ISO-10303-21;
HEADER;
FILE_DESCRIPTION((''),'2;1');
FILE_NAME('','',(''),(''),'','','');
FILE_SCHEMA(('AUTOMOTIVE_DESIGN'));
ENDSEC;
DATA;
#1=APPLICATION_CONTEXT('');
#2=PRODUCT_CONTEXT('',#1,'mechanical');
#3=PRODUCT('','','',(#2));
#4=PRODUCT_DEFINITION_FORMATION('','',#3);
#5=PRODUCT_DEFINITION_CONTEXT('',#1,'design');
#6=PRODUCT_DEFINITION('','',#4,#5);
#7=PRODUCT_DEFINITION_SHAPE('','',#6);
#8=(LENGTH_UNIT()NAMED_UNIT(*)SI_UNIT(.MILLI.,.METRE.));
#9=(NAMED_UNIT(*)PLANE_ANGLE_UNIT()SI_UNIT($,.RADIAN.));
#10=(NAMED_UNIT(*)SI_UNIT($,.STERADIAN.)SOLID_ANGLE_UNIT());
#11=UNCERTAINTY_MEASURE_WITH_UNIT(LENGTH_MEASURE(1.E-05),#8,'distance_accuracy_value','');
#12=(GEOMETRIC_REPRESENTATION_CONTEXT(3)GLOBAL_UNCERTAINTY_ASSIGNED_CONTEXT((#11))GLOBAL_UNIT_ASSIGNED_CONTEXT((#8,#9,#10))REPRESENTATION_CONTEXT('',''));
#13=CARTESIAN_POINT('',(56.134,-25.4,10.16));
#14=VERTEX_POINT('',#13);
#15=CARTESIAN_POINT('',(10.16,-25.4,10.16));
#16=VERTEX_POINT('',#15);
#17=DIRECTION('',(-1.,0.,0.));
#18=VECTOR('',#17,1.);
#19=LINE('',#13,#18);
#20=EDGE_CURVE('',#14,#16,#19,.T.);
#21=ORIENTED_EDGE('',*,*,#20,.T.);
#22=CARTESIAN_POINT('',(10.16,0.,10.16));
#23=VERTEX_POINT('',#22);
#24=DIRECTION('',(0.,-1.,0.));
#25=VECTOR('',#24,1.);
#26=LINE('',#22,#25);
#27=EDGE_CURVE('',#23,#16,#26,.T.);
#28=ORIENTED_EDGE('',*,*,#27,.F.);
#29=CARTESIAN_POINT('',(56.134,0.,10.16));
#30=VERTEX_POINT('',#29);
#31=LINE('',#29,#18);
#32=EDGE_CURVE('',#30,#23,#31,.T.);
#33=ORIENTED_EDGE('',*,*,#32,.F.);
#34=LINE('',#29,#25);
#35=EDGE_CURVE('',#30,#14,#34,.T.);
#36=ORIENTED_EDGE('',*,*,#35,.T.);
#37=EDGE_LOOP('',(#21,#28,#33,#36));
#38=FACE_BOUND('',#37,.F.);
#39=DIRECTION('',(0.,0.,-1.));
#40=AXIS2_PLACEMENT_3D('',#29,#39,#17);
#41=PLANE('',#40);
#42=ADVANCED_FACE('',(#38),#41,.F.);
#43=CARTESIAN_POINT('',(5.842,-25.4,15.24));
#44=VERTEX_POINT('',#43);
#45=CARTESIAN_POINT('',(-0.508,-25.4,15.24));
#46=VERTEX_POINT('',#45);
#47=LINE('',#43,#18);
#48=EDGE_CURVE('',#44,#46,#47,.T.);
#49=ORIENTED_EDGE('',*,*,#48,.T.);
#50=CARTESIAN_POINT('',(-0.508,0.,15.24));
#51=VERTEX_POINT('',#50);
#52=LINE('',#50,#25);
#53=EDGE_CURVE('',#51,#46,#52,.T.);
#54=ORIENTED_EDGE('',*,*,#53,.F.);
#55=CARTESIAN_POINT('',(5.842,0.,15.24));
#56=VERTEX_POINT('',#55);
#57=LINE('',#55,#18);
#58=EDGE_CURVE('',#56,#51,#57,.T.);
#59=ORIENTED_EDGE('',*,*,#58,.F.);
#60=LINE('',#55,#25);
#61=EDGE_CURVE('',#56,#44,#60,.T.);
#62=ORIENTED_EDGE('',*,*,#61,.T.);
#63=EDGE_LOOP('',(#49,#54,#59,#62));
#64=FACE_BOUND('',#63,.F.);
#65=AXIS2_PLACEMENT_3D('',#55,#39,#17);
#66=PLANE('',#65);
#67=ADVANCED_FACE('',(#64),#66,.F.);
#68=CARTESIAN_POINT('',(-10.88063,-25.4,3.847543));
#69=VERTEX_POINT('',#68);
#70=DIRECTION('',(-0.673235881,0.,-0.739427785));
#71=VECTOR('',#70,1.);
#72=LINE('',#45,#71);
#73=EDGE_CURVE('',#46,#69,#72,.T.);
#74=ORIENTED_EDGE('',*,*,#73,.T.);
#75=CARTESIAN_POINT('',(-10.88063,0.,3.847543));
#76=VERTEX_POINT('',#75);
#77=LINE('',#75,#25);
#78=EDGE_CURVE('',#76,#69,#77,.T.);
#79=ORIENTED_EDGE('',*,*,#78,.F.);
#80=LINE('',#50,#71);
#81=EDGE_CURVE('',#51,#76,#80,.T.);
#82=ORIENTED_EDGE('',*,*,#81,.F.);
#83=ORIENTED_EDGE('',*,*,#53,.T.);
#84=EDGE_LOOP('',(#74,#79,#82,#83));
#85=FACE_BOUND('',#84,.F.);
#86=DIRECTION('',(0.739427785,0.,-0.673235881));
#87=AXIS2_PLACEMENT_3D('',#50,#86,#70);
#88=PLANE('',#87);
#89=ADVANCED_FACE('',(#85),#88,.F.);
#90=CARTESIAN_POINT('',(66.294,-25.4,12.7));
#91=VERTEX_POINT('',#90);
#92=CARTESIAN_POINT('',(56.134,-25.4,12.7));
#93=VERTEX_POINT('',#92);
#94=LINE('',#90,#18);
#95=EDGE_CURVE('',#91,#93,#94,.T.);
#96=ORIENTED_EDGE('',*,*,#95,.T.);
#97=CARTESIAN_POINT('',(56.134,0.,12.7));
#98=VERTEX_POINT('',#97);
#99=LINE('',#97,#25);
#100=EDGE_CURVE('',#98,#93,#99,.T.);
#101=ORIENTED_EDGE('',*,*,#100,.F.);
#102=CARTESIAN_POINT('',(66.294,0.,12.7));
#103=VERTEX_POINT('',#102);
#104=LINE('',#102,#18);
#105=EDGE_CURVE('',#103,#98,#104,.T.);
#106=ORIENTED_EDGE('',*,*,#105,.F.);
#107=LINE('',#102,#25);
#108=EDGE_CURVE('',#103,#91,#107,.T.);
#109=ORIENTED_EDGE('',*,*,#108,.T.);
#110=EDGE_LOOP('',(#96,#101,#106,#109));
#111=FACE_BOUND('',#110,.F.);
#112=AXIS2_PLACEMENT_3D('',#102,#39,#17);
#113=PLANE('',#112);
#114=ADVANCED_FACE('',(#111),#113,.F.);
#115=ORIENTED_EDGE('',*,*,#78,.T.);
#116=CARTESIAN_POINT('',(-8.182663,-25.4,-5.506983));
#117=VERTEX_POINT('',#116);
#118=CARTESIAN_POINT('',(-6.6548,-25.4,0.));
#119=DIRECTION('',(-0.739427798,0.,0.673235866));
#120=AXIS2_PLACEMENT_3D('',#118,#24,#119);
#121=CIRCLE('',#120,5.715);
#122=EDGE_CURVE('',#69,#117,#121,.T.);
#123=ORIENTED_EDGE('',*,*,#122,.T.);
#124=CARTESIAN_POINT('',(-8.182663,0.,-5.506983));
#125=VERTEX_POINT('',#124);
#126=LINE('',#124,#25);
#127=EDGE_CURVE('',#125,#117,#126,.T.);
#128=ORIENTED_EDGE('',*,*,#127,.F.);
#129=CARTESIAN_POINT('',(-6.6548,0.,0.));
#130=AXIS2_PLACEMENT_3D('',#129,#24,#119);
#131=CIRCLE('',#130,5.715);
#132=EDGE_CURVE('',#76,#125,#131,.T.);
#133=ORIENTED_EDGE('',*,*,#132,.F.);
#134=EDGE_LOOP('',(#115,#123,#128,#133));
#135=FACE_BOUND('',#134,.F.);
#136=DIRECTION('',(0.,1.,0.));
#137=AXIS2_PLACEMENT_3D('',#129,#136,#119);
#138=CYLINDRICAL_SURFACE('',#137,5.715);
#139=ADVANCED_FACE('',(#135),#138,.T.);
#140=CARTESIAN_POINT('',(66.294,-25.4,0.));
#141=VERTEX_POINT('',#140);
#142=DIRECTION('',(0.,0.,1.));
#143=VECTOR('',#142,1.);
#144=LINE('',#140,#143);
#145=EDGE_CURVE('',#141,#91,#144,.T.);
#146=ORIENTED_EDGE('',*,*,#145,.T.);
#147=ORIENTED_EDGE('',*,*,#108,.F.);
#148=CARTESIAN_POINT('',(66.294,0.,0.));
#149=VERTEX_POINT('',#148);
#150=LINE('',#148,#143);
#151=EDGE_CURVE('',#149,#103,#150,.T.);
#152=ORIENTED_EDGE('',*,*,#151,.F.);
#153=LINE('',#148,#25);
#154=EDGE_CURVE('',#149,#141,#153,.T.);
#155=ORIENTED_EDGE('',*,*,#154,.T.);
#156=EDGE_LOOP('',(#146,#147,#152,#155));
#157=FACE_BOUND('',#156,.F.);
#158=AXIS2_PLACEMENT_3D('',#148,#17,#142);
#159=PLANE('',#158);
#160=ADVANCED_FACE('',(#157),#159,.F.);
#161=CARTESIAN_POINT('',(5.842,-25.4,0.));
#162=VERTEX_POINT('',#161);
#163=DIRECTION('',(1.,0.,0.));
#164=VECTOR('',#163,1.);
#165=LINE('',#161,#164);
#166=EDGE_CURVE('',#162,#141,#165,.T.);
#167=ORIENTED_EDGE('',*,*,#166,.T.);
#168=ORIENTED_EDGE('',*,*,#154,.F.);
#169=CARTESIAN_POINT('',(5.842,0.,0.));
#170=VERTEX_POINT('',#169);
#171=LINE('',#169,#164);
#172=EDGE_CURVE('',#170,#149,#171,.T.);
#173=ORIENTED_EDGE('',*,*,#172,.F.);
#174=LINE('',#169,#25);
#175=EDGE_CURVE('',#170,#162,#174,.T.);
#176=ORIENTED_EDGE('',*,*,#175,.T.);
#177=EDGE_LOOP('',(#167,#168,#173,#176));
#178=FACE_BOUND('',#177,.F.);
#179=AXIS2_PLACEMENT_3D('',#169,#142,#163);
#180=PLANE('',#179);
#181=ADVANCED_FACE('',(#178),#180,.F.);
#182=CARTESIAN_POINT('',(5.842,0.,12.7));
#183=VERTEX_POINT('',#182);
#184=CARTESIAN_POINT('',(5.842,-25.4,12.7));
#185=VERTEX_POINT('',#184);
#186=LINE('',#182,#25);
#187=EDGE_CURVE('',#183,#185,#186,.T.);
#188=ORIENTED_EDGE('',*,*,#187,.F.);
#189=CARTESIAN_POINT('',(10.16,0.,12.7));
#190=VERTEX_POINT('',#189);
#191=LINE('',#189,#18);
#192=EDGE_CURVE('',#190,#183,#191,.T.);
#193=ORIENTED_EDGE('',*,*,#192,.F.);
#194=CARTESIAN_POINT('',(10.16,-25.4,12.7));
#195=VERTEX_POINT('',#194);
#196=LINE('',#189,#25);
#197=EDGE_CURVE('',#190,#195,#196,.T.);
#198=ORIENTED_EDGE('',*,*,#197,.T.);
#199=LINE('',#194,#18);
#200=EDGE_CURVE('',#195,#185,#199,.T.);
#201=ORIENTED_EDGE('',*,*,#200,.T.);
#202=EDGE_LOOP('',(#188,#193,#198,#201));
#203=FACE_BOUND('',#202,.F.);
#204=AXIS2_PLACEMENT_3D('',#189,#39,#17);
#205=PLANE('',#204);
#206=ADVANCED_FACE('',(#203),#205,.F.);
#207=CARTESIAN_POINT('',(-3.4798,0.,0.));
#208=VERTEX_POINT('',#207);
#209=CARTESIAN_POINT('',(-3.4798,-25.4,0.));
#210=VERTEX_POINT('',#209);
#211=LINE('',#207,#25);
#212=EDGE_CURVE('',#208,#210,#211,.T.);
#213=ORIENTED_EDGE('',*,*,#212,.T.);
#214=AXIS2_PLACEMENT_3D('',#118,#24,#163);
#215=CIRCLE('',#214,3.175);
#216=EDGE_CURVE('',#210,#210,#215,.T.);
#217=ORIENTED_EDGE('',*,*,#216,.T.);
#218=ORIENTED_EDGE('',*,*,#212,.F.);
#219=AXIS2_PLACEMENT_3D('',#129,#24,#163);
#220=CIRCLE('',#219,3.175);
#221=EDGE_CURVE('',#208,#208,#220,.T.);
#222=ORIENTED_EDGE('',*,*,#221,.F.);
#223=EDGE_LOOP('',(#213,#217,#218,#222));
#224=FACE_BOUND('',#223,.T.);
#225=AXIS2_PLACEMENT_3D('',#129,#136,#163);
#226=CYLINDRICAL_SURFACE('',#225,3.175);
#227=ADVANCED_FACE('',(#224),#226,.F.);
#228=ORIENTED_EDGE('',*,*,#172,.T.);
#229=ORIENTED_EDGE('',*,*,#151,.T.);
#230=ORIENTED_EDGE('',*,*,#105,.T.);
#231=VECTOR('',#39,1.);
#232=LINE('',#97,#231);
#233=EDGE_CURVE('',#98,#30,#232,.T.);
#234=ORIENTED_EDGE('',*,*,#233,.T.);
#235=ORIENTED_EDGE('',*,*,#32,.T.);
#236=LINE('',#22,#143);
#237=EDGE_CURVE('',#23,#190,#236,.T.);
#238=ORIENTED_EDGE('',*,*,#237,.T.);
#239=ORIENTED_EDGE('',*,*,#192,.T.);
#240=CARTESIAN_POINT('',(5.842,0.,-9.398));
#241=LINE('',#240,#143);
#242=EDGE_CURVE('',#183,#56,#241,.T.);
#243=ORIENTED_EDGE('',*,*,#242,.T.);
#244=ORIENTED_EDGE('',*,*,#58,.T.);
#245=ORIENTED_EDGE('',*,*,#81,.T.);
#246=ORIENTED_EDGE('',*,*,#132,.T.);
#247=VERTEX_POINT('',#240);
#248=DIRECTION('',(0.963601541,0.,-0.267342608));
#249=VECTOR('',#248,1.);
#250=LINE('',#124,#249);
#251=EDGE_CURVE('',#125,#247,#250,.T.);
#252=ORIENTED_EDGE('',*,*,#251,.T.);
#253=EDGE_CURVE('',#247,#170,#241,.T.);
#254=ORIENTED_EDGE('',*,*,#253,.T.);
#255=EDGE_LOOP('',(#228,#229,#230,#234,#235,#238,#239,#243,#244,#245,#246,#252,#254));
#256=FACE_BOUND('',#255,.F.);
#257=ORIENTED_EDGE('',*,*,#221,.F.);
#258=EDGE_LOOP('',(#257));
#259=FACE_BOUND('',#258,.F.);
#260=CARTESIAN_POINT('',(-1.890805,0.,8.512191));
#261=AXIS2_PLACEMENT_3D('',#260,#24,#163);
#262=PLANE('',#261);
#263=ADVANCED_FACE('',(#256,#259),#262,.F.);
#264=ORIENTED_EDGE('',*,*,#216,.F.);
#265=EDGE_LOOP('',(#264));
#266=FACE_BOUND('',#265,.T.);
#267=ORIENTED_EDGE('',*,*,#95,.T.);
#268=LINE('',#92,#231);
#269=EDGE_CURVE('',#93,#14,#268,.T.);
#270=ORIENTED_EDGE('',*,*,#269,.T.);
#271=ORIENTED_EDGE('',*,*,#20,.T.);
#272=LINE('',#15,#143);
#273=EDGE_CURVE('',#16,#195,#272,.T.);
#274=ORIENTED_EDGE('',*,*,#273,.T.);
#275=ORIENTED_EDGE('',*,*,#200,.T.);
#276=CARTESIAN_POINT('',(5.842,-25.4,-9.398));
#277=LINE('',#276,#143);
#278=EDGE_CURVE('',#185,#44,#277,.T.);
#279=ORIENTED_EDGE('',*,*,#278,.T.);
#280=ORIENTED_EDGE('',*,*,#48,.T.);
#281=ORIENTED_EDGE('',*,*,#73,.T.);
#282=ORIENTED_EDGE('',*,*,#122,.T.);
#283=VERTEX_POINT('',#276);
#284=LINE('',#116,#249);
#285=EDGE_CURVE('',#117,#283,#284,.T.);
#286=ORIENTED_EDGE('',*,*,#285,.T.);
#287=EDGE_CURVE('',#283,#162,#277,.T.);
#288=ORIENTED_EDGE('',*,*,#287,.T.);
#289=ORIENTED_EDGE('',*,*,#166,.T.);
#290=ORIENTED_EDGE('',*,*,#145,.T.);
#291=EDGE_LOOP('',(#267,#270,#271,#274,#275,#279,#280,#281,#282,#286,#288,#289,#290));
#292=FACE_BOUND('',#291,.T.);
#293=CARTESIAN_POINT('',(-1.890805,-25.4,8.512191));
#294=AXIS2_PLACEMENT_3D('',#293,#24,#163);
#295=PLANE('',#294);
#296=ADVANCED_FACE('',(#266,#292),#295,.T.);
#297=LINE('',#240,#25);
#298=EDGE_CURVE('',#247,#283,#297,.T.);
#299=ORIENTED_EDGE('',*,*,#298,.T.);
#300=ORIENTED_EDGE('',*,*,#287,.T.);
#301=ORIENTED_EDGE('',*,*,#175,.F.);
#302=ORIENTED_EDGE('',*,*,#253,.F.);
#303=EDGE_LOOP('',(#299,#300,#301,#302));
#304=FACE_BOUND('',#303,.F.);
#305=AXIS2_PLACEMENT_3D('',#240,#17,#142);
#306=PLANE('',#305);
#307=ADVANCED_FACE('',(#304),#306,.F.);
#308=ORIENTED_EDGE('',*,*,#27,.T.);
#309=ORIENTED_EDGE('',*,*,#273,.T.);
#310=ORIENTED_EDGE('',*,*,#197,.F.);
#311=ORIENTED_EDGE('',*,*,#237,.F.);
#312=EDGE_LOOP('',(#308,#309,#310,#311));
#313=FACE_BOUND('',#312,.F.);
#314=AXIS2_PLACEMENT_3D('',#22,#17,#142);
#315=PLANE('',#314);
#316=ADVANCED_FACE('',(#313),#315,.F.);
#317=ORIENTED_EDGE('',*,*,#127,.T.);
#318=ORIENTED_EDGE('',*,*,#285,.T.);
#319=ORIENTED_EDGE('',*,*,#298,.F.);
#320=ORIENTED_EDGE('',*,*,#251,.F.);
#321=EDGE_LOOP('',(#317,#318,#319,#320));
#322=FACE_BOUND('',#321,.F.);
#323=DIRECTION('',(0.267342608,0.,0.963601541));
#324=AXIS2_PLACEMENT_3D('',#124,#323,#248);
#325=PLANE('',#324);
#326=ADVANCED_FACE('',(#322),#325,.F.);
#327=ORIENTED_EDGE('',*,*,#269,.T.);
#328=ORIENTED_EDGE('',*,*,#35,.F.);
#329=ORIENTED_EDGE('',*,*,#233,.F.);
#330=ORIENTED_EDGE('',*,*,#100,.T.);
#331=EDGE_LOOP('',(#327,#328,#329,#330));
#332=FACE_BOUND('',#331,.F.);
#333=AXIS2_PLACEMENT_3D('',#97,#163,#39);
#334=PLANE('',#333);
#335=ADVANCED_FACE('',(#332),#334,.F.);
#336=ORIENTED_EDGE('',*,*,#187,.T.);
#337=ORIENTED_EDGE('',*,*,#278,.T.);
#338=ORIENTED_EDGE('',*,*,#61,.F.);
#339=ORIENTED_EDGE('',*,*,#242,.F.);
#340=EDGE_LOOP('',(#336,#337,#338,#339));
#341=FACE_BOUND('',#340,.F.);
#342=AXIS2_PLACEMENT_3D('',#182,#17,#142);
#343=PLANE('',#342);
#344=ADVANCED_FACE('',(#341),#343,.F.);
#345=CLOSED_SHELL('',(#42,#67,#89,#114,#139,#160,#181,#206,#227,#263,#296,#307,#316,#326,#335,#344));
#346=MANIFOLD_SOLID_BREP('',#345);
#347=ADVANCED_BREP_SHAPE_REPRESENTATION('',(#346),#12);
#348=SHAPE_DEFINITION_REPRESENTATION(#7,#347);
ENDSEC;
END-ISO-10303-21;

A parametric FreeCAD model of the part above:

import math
import FreeCAD as App
import Part
import Sketcher
from FreeCAD import Vector
Q = App.Units.Quantity

doc = App.newDocument("Part")
params = doc.addObject("Spreadsheet::Sheet", "Params")
for row, (alias, value) in enumerate([
    ("sketch1_diameter", "0.25 in"),
    ("sketch1_width", "0.4 in"),
    ("sketch1_height", "0.5 in"),
    ("sketch1_height2", "0.1 in"),
    ("sketch1_radius", "0.225 in"),
    ("pad1_length", "1 in"),
], start=1):
    params.set(f"A{row}", alias)
    params.set(f"B{row}", "=" + value)
    params.setAlias(f"B{row}", alias)

body = doc.addObject("PartDesign::Body", "Body")

sketch1 = doc.addObject("Sketcher::SketchObject", "Sketch")
body.addObject(sketch1)
sketch1.AttachmentSupport = (doc.XZ_Plane, [""])
sketch1.MapMode = "FlatFace"
sketch1.addGeometry([
    Part.LineSegment(Vector(5.8, 15.2, 0), Vector(-0.5, 15.2, 0)),
    Part.LineSegment(Vector(-0.5, 15.2, 0), Vector(-10.9, 3.8, 0)),
    Part.ArcOfCircle(Part.Circle(Vector(-6.7, 0, 0), Vector(0, 0, 1), 5.7), math.radians(138), math.radians(254)),
    Part.LineSegment(Vector(-8.2, -5.5, 0), Vector(5.8, -9.4, 0)),
    Part.LineSegment(Vector(5.8, -9.4, 0), Vector(5.8, 0, 0)),
    Part.LineSegment(Vector(5.8, 0, 0), Vector(66.3, 0, 0)),
    Part.LineSegment(Vector(66.3, 0, 0), Vector(66.3, 12.7, 0)),
    Part.LineSegment(Vector(66.3, 12.7, 0), Vector(56.1, 12.7, 0)),
    Part.LineSegment(Vector(56.1, 12.7, 0), Vector(56.1, 10.2, 0)),
    Part.LineSegment(Vector(56.1, 10.2, 0), Vector(10.2, 10.2, 0)),
    Part.LineSegment(Vector(10.2, 10.2, 0), Vector(10.2, 12.7, 0)),
    Part.LineSegment(Vector(10.2, 12.7, 0), Vector(5.8, 12.7, 0)),
    Part.LineSegment(Vector(5.8, 12.7, 0), Vector(5.8, 15.2, 0)),
    Part.Circle(Vector(-6.7, 0, 0), Vector(0, 0, 1), 3.2),
], False)
sketch1.addConstraint([
    Sketcher.Constraint("Coincident", 0, 2, 1, 1),
    Sketcher.Constraint("Tangent", 1, 2, 2, 1),
    Sketcher.Constraint("Tangent", 2, 2, 3, 1),
    Sketcher.Constraint("Coincident", 3, 2, 4, 1),
    Sketcher.Constraint("Coincident", 4, 2, 5, 1),
    Sketcher.Constraint("Coincident", 5, 2, 6, 1),
    Sketcher.Constraint("Coincident", 6, 2, 7, 1),
    Sketcher.Constraint("Coincident", 7, 2, 8, 1),
    Sketcher.Constraint("Coincident", 8, 2, 9, 1),
    Sketcher.Constraint("Coincident", 9, 2, 10, 1),
    Sketcher.Constraint("Coincident", 10, 2, 11, 1),
    Sketcher.Constraint("Coincident", 11, 2, 12, 1),
    Sketcher.Constraint("Coincident", 12, 2, 0, 1),
    Sketcher.Constraint("Horizontal", 0),
    Sketcher.Constraint("Vertical", 4),
    Sketcher.Constraint("Horizontal", 5),
    Sketcher.Constraint("Vertical", 6),
    Sketcher.Constraint("Horizontal", 7),
    Sketcher.Constraint("Vertical", 8),
    Sketcher.Constraint("Horizontal", 9),
    Sketcher.Constraint("Vertical", 10),
    Sketcher.Constraint("Horizontal", 11),
    Sketcher.Constraint("Vertical", 12),
    Sketcher.Constraint("Coincident", 13, 3, 2, 3),
    Sketcher.Constraint("PointOnObject", 2, 3, -1),
    Sketcher.Constraint("PointOnObject", 4, 2, -1),
    Sketcher.Constraint("Horizontal", 7, 2, 10, 2),
    Sketcher.Constraint("Vertical", 4, 2, 11, 2),
    Sketcher.Constraint("Equal", 10, 12),
    Sketcher.Constraint("Diameter", 13, Q("0.25 in")),
    Sketcher.Constraint("DistanceX", 7, 2, 7, 1, Q("0.4 in")),
    Sketcher.Constraint("DistanceY", 6, 1, 6, 2, Q("0.5 in")),
    Sketcher.Constraint("DistanceY", 8, 2, 8, 1, Q("0.1 in")),
    Sketcher.Constraint("Radius", 2, Q("0.225 in")),
    Sketcher.Constraint("DistanceX", 0, 2, 0, 1, Q("0.25 in")),
    Sketcher.Constraint("DistanceX", 5, 1, 5, 2, Q("2.38 in")),
    Sketcher.Constraint("DistanceX", 9, 2, 9, 1, Q("1.81 in")),
    Sketcher.Constraint("DistanceY", 4, 1, 4, 2, Q("0.37 in")),
    Sketcher.Constraint("DistanceX", -1, 1, 9, 2, Q("0.4 in")),
    Sketcher.Constraint("DistanceX", 2, 3, -1, 1, Q("0.262 in")),
])
sketch1.setExpression("Constraints[29]", "Params.sketch1_diameter")
sketch1.setExpression("Constraints[30]", "Params.sketch1_width")
sketch1.setExpression("Constraints[31]", "Params.sketch1_height")
sketch1.setExpression("Constraints[32]", "Params.sketch1_height2")
sketch1.setExpression("Constraints[33]", "Params.sketch1_radius")
pad1 = doc.addObject("PartDesign::Pad", "Pad")
body.addObject(pad1)
pad1.Profile = sketch1
pad1.setExpression("Length", "Params.pad1_length")

doc.recompute()
